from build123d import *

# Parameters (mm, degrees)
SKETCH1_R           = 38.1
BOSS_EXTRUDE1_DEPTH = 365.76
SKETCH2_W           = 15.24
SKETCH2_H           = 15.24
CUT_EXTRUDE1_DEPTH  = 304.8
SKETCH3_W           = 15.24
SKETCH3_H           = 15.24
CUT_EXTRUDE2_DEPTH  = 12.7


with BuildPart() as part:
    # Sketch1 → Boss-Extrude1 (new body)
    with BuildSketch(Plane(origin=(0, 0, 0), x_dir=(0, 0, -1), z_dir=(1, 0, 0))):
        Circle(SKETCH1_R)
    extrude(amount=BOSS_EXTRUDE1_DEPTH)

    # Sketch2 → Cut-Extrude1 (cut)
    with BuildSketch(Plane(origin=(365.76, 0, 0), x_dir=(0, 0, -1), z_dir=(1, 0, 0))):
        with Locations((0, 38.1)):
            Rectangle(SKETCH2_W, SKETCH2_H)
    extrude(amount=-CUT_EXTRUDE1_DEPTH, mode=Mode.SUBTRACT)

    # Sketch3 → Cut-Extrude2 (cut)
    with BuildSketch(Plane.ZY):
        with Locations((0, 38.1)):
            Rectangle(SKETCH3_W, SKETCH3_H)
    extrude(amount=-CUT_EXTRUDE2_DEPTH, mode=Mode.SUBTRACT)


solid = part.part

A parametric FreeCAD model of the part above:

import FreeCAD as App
import Part
import Sketcher
Q = App.Units.Quantity

doc = App.newDocument("Part")
body = doc.addObject("PartDesign::Body", "Body")

# Sketch on YZ plane
sketch1 = doc.addObject("Sketcher::SketchObject", "Sketch")
body.addObject(sketch1)
sketch1.AttachmentSupport = (doc.YZ_Plane, [""])
sketch1.MapMode = "FlatFace"
sketch1.addGeometry(Part.Circle(App.Vector(0, 0, 0), App.Vector(0, 0, 1), 38), False)
sketch1.addConstraint([
    Sketcher.Constraint("Coincident", 0, 3, -1, 1),
    Sketcher.Constraint("Diameter", 0, Q("3 in")),
])
pad1 = doc.addObject("PartDesign::Pad", "Pad")
body.addObject(pad1)
pad1.Profile = sketch1
pad1.Length = Q("14.4 in")

# Sketch on YZ plane
sketch2 = doc.addObject("Sketcher::SketchObject", "Sketch001")
body.addObject(sketch2)
sketch2.AttachmentSupport = (doc.YZ_Plane, [""])
sketch2.MapMode = "FlatFace"
sketch2.AttachmentOffset = App.Placement(App.Vector(0, 0, 14.4 * 25.4), App.Rotation())
sketch2.addGeometry([
    Part.LineSegment(App.Vector(46, 8, 0), App.Vector(30, 8, 0)),
    Part.LineSegment(App.Vector(30, 8, 0), App.Vector(30, -8, 0)),
    Part.LineSegment(App.Vector(30, -8, 0), App.Vector(46, -8, 0)),
    Part.LineSegment(App.Vector(46, -8, 0), App.Vector(46, 8, 0)),
], False)
sketch2.addConstraint([
    Sketcher.Constraint("Coincident", 0, 2, 1, 1),
    Sketcher.Constraint("Coincident", 1, 2, 2, 1),
    Sketcher.Constraint("Coincident", 2, 2, 3, 1),
    Sketcher.Constraint("Coincident", 3, 2, 0, 1),
    Sketcher.Constraint("Horizontal", 0),
    Sketcher.Constraint("Vertical", 1),
    Sketcher.Constraint("Horizontal", 2),
    Sketcher.Constraint("Vertical", 3),
    Sketcher.Constraint("Equal", 2, 1),
    Sketcher.Constraint("DistanceX", 0, 2, 0, 1, Q("0.6 in")),
    Sketcher.Constraint("DistanceX", -1, 1, 0, 2, Q("1.2 in")),
    Sketcher.Constraint("DistanceY", -1, 1, 0, 2, Q("0.3 in")),
])
pocket1 = doc.addObject("PartDesign::Pocket", "Pocket")
body.addObject(pocket1)
pocket1.Profile = sketch2
pocket1.Length = Q("12 in")

# Sketch on YZ plane
sketch3 = doc.addObject("Sketcher::SketchObject", "Sketch002")
body.addObject(sketch3)
sketch3.AttachmentSupport = (doc.YZ_Plane, [""])
sketch3.MapMode = "FlatFace"
sketch3.addGeometry([
    Part.LineSegment(App.Vector(46, -8, 0), App.Vector(30, -8, 0)),
    Part.LineSegment(App.Vector(30, -8, 0), App.Vector(30, 8, 0)),
    Part.LineSegment(App.Vector(30, 8, 0), App.Vector(46, 8, 0)),
    Part.LineSegment(App.Vector(46, 8, 0), App.Vector(46, -8, 0)),
], False)
sketch3.addConstraint([
    Sketcher.Constraint("Coincident", 0, 2, 1, 1),
    Sketcher.Constraint("Coincident", 1, 2, 2, 1),
    Sketcher.Constraint("Coincident", 2, 2, 3, 1),
    Sketcher.Constraint("Coincident", 3, 2, 0, 1),
    Sketcher.Constraint("Horizontal", 0),
    Sketcher.Constraint("Vertical", 1),
    Sketcher.Constraint("Horizontal", 2),
    Sketcher.Constraint("Vertical", 3),
    Sketcher.Constraint("Equal", 2, 1),
    Sketcher.Constraint("DistanceX", 0, 2, 0, 1, Q("0.6 in")),
    Sketcher.Constraint("DistanceX", -1, 1, 0, 2, Q("1.2 in")),
    Sketcher.Constraint("DistanceY", 0, 2, -1, 1, Q("0.3 in")),
])
pocket2 = doc.addObject("PartDesign::Pocket", "Pocket001")
body.addObject(pocket2)
pocket2.Profile = sketch3
pocket2.Length = Q("0.5 in")
pocket2.Reversed = True

doc.recompute()
